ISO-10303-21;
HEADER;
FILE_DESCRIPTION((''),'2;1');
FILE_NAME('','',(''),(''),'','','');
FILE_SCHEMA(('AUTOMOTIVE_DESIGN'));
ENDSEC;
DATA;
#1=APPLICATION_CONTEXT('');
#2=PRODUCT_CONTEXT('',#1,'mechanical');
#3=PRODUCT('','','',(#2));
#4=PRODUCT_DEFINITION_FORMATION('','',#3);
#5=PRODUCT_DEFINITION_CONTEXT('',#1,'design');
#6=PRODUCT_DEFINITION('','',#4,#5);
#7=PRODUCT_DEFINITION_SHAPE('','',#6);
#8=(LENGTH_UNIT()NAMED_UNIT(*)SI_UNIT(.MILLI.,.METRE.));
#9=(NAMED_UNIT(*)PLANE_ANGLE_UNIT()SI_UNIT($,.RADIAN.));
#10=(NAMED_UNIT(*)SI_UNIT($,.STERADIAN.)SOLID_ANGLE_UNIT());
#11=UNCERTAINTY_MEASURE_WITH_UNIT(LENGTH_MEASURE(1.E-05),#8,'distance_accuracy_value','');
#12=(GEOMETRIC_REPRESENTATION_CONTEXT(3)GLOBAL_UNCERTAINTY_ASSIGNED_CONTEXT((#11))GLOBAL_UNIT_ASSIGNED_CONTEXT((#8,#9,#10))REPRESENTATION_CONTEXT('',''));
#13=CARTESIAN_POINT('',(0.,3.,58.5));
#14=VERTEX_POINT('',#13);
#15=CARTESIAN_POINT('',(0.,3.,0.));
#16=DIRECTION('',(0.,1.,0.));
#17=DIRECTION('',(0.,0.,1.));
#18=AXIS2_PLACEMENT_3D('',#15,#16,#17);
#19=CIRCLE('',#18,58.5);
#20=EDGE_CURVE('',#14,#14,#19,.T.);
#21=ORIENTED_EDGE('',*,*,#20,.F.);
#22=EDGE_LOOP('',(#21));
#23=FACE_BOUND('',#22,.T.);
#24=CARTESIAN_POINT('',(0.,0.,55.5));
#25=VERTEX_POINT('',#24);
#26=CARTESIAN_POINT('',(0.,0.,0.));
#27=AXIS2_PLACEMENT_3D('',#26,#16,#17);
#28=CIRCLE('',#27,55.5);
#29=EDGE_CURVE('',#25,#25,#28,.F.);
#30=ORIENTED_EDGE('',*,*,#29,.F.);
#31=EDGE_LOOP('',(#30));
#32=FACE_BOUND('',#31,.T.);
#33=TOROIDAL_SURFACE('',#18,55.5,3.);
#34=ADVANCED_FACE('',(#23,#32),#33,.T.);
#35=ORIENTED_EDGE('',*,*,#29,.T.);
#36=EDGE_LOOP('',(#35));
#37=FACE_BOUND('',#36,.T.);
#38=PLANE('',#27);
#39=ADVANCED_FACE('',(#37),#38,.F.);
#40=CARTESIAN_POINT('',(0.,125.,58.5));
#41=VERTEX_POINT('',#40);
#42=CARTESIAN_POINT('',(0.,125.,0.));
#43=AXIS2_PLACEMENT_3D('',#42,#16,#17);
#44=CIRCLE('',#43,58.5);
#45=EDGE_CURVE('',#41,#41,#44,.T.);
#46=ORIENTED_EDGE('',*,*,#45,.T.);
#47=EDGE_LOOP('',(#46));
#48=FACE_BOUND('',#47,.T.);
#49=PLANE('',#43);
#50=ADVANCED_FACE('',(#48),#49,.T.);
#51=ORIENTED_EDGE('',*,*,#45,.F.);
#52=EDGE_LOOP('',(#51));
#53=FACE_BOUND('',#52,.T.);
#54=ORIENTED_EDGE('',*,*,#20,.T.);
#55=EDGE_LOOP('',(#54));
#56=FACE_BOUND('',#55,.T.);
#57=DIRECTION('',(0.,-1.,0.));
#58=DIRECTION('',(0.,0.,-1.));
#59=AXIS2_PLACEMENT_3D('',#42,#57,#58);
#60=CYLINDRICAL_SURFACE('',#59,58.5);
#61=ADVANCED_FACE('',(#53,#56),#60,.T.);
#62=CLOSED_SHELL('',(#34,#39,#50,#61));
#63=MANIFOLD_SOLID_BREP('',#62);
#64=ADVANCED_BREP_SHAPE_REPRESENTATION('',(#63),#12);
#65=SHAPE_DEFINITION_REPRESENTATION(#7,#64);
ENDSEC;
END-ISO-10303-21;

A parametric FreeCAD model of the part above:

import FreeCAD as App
import Part
import Sketcher
from FreeCAD import Vector


def edges_at(feature, points):
    """Names of the edges that pass closest to the given points."""
    edges = feature.Shape.Edges
    near = lambda p: min(range(len(edges)), key=lambda i: edges[i].distToShape(Part.Vertex(*p))[0])
    return sorted({f"Edge{near(p) + 1}" for p in points})

doc = App.newDocument("Part")
params = doc.addObject("Spreadsheet::Sheet", "Params")
for row, (alias, value) in enumerate([
    ("sketch1_diameter", "117 mm"),
    ("pad1_length", "125 mm"),
    ("fillet_radius", "3 mm"),
], start=1):
    params.set(f"A{row}", alias)
    params.set(f"B{row}", "=" + value)
    params.setAlias(f"B{row}", alias)

body = doc.addObject("PartDesign::Body", "Body")

sketch1 = body.newObject("Sketcher::SketchObject", "Sketch")
sketch1.AttachmentSupport = (doc.getObject("XZ_Plane"), [""])
sketch1.MapMode = "FlatFace"
sketch1.addGeometry(Part.Circle(Vector(0, 0, 0), Vector(0, 0, 1), 58), False)
sketch1.addConstraint([
    Sketcher.Constraint("Coincident", 0, 3, -1, 1),
    Sketcher.Constraint("Diameter", 0, 117.0),
])
sketch1.setExpression("Constraints[1]", "Params.sketch1_diameter")
pad1 = body.newObject("PartDesign::Pad", "Pad")
pad1.Profile = sketch1
pad1.setExpression("Length", "Params.pad1_length")
pad1.Reversed = True
doc.recompute()

fillet = body.newObject("PartDesign::Fillet", "Fillet")
fillet.Base = (pad1, edges_at(pad1, [(-58.5, 0, 0)]))
fillet.setExpression("Radius", "Params.fillet_radius")

doc.recompute()
